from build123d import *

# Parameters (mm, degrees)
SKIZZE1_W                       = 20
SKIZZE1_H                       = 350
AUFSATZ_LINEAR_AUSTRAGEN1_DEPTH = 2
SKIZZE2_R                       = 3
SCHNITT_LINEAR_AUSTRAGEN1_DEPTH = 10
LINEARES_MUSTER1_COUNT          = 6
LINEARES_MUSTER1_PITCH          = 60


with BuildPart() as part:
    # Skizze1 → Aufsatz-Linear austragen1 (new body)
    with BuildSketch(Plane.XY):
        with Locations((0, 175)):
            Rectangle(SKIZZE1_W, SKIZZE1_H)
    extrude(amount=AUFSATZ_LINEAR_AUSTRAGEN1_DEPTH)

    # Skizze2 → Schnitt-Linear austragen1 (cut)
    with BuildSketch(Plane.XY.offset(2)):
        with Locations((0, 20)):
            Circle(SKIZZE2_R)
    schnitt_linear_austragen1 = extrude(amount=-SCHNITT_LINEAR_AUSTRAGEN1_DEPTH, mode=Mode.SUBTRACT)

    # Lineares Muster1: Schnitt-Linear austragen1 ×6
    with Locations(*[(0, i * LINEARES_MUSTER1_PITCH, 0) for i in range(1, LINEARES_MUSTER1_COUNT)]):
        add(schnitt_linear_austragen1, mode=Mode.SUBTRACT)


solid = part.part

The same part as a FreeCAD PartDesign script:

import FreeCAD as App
import Part
import Sketcher

V = App.Vector

doc = App.newDocument("Part")
body = doc.addObject("PartDesign::Body", "Body")

# Sketch on XY plane
sketch1 = body.newObject("Sketcher::SketchObject", "Sketch")
sketch1.AttachmentSupport = (doc.getObject("XY_Plane"), [""])
sketch1.MapMode = "FlatFace"
sketch1.addGeometry(Part.LineSegment(V(-10, 350, 0), V(-10, 0, 0)), False)
sketch1.addGeometry(Part.LineSegment(V(-10, 0, 0), V(10, 0, 0)), False)
sketch1.addGeometry(Part.LineSegment(V(10, 0, 0), V(10, 350, 0)), False)
sketch1.addGeometry(Part.LineSegment(V(10, 350, 0), V(-10, 350, 0)), False)
sketch1.addConstraint(Sketcher.Constraint("Coincident", 0, 2, 1, 1))
sketch1.addConstraint(Sketcher.Constraint("Coincident", 1, 2, 2, 1))
sketch1.addConstraint(Sketcher.Constraint("Coincident", 2, 2, 3, 1))
sketch1.addConstraint(Sketcher.Constraint("Coincident", 3, 2, 0, 1))
sketch1.addConstraint(Sketcher.Constraint("Vertical", 0))
sketch1.addConstraint(Sketcher.Constraint("Horizontal", 1))
sketch1.addConstraint(Sketcher.Constraint("Vertical", 2))
sketch1.addConstraint(Sketcher.Constraint("Horizontal", 3))
sketch1.addConstraint(Sketcher.Constraint("Symmetric", 0, 2, 1, 2, -1, 1))
sketch1.addConstraint(Sketcher.Constraint("DistanceX", 1, 1, 1, 2, 20.0))
sketch1.addConstraint(Sketcher.Constraint("DistanceY", 0, 2, 0, 1, 350.0))
pad1 = body.newObject("PartDesign::Pad", "Pad")
pad1.Profile = sketch1
pad1.Length = 2

# Sketch on XY plane
sketch2 = body.newObject("Sketcher::SketchObject", "Sketch001")
sketch2.AttachmentSupport = (doc.getObject("XY_Plane"), [""])
sketch2.MapMode = "FlatFace"
sketch2.AttachmentOffset = App.Placement(V(0, 0, 2), App.Rotation())
sketch2.addGeometry(Part.Circle(V(0, 20, 0), V(0, 0, 1), 3), False)
sketch2.addConstraint(Sketcher.Constraint("PointOnObject", 0, 3, -2))
sketch2.addConstraint(Sketcher.Constraint("Diameter", 0, 6.0))
sketch2.addConstraint(Sketcher.Constraint("DistanceY", -1, 1, 0, 3, 20.0))
pocket1 = body.newObject("PartDesign::Pocket", "Pocket")
pocket1.Profile = sketch2
pocket1.Length = 10
doc.recompute()

linearpattern = body.newObject("PartDesign::LinearPattern", "LinearPattern")
linearpattern.Originals = [pocket1]
linearpattern.Direction = (doc.getObject("Y_Axis"), [""])
linearpattern.Mode = "offset"
linearpattern.Offset = 60
linearpattern.Occurrences = 6
body.Tip = linearpattern

doc.recompute()
